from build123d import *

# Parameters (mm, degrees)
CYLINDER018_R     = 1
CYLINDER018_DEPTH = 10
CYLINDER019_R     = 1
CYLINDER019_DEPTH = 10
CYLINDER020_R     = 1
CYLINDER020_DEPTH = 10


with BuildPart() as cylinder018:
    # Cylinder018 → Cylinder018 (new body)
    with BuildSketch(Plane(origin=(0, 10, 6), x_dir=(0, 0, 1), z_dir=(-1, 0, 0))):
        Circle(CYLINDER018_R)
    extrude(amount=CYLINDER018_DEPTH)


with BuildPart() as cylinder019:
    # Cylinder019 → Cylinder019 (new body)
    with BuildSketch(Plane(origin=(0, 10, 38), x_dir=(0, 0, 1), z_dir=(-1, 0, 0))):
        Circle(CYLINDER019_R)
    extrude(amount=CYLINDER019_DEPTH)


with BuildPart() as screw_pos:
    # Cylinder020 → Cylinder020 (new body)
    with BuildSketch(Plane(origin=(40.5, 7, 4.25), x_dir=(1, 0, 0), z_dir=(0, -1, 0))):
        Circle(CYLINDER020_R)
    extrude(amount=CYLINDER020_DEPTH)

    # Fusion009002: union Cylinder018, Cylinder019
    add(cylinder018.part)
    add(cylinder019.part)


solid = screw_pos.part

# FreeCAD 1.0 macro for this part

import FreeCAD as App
import Part
import Sketcher

V = App.Vector
Q = App.Units.Quantity

doc = App.newDocument("Part")
body = doc.addObject("PartDesign::Body", "Body")

# Sketch on YZ plane
sketch1 = body.newObject("Sketcher::SketchObject", "Sketch")
sketch1.AttachmentSupport = (doc.getObject("YZ_Plane"), [""])
sketch1.MapMode = "FlatFace"
sketch1.addGeometry(Part.Circle(V(10, 6, 0), V(0, 0, 1), 1), False)
sketch1.addConstraint(Sketcher.Constraint("Diameter", 0, Q("2 mm")))
sketch1.addConstraint(Sketcher.Constraint("DistanceX", -1, 1, 0, 3, Q("10 mm")))
sketch1.addConstraint(Sketcher.Constraint("DistanceY", -1, 1, 0, 3, Q("6 mm")))
pad1 = body.newObject("PartDesign::Pad", "Pad")
pad1.Profile = sketch1
pad1.Length = 10
pad1.Reversed = True
body2 = doc.addObject("PartDesign::Body", "Body001")

# Sketch on YZ plane
sketch2 = body2.newObject("Sketcher::SketchObject", "Sketch001")
sketch2.AttachmentSupport = (doc.getObject("YZ_Plane001"), [""])
sketch2.MapMode = "FlatFace"
sketch2.addGeometry(Part.Circle(V(10, 38, 0), V(0, 0, 1), 1), False)
sketch2.addConstraint(Sketcher.Constraint("Diameter", 0, Q("2 mm")))
sketch2.addConstraint(Sketcher.Constraint("DistanceX", -1, 1, 0, 3, Q("10 mm")))
sketch2.addConstraint(Sketcher.Constraint("DistanceY", -1, 1, 0, 3, Q("38 mm")))
pad2 = body2.newObject("PartDesign::Pad", "Pad001")
pad2.Profile = sketch2
pad2.Length = 10
pad2.Reversed = True
body3 = doc.addObject("PartDesign::Body", "Body002")
body3.AllowCompound = True

# Sketch on XZ plane
sketch3 = body3.newObject("Sketcher::SketchObject", "Sketch002")
sketch3.AttachmentSupport = (doc.getObject("XZ_Plane002"), [""])
sketch3.MapMode = "FlatFace"
sketch3.AttachmentOffset = App.Placement(V(0, 0, -7), App.Rotation())
sketch3.addGeometry(Part.Circle(V(40.5, 4.25, 0), V(0, 0, 1), 1), False)
sketch3.addConstraint(Sketcher.Constraint("Diameter", 0, Q("2 mm")))
sketch3.addConstraint(Sketcher.Constraint("DistanceX", -1, 1, 0, 3, Q("40.5 mm")))
sketch3.addConstraint(Sketcher.Constraint("DistanceY", -1, 1, 0, 3, Q("4.25 mm")))
pad3 = body3.newObject("PartDesign::Pad", "Pad002")
pad3.Profile = sketch3
pad3.Length = 10
doc.recompute()

boolean = body3.newObject("PartDesign::Boolean", "Boolean")
boolean.Type = "Fuse"
boolean.addObjects([body])
doc.recompute()

boolean2 = body3.newObject("PartDesign::Boolean", "Boolean001")
boolean2.Type = "Fuse"
boolean2.addObjects([body2])

doc.recompute()
